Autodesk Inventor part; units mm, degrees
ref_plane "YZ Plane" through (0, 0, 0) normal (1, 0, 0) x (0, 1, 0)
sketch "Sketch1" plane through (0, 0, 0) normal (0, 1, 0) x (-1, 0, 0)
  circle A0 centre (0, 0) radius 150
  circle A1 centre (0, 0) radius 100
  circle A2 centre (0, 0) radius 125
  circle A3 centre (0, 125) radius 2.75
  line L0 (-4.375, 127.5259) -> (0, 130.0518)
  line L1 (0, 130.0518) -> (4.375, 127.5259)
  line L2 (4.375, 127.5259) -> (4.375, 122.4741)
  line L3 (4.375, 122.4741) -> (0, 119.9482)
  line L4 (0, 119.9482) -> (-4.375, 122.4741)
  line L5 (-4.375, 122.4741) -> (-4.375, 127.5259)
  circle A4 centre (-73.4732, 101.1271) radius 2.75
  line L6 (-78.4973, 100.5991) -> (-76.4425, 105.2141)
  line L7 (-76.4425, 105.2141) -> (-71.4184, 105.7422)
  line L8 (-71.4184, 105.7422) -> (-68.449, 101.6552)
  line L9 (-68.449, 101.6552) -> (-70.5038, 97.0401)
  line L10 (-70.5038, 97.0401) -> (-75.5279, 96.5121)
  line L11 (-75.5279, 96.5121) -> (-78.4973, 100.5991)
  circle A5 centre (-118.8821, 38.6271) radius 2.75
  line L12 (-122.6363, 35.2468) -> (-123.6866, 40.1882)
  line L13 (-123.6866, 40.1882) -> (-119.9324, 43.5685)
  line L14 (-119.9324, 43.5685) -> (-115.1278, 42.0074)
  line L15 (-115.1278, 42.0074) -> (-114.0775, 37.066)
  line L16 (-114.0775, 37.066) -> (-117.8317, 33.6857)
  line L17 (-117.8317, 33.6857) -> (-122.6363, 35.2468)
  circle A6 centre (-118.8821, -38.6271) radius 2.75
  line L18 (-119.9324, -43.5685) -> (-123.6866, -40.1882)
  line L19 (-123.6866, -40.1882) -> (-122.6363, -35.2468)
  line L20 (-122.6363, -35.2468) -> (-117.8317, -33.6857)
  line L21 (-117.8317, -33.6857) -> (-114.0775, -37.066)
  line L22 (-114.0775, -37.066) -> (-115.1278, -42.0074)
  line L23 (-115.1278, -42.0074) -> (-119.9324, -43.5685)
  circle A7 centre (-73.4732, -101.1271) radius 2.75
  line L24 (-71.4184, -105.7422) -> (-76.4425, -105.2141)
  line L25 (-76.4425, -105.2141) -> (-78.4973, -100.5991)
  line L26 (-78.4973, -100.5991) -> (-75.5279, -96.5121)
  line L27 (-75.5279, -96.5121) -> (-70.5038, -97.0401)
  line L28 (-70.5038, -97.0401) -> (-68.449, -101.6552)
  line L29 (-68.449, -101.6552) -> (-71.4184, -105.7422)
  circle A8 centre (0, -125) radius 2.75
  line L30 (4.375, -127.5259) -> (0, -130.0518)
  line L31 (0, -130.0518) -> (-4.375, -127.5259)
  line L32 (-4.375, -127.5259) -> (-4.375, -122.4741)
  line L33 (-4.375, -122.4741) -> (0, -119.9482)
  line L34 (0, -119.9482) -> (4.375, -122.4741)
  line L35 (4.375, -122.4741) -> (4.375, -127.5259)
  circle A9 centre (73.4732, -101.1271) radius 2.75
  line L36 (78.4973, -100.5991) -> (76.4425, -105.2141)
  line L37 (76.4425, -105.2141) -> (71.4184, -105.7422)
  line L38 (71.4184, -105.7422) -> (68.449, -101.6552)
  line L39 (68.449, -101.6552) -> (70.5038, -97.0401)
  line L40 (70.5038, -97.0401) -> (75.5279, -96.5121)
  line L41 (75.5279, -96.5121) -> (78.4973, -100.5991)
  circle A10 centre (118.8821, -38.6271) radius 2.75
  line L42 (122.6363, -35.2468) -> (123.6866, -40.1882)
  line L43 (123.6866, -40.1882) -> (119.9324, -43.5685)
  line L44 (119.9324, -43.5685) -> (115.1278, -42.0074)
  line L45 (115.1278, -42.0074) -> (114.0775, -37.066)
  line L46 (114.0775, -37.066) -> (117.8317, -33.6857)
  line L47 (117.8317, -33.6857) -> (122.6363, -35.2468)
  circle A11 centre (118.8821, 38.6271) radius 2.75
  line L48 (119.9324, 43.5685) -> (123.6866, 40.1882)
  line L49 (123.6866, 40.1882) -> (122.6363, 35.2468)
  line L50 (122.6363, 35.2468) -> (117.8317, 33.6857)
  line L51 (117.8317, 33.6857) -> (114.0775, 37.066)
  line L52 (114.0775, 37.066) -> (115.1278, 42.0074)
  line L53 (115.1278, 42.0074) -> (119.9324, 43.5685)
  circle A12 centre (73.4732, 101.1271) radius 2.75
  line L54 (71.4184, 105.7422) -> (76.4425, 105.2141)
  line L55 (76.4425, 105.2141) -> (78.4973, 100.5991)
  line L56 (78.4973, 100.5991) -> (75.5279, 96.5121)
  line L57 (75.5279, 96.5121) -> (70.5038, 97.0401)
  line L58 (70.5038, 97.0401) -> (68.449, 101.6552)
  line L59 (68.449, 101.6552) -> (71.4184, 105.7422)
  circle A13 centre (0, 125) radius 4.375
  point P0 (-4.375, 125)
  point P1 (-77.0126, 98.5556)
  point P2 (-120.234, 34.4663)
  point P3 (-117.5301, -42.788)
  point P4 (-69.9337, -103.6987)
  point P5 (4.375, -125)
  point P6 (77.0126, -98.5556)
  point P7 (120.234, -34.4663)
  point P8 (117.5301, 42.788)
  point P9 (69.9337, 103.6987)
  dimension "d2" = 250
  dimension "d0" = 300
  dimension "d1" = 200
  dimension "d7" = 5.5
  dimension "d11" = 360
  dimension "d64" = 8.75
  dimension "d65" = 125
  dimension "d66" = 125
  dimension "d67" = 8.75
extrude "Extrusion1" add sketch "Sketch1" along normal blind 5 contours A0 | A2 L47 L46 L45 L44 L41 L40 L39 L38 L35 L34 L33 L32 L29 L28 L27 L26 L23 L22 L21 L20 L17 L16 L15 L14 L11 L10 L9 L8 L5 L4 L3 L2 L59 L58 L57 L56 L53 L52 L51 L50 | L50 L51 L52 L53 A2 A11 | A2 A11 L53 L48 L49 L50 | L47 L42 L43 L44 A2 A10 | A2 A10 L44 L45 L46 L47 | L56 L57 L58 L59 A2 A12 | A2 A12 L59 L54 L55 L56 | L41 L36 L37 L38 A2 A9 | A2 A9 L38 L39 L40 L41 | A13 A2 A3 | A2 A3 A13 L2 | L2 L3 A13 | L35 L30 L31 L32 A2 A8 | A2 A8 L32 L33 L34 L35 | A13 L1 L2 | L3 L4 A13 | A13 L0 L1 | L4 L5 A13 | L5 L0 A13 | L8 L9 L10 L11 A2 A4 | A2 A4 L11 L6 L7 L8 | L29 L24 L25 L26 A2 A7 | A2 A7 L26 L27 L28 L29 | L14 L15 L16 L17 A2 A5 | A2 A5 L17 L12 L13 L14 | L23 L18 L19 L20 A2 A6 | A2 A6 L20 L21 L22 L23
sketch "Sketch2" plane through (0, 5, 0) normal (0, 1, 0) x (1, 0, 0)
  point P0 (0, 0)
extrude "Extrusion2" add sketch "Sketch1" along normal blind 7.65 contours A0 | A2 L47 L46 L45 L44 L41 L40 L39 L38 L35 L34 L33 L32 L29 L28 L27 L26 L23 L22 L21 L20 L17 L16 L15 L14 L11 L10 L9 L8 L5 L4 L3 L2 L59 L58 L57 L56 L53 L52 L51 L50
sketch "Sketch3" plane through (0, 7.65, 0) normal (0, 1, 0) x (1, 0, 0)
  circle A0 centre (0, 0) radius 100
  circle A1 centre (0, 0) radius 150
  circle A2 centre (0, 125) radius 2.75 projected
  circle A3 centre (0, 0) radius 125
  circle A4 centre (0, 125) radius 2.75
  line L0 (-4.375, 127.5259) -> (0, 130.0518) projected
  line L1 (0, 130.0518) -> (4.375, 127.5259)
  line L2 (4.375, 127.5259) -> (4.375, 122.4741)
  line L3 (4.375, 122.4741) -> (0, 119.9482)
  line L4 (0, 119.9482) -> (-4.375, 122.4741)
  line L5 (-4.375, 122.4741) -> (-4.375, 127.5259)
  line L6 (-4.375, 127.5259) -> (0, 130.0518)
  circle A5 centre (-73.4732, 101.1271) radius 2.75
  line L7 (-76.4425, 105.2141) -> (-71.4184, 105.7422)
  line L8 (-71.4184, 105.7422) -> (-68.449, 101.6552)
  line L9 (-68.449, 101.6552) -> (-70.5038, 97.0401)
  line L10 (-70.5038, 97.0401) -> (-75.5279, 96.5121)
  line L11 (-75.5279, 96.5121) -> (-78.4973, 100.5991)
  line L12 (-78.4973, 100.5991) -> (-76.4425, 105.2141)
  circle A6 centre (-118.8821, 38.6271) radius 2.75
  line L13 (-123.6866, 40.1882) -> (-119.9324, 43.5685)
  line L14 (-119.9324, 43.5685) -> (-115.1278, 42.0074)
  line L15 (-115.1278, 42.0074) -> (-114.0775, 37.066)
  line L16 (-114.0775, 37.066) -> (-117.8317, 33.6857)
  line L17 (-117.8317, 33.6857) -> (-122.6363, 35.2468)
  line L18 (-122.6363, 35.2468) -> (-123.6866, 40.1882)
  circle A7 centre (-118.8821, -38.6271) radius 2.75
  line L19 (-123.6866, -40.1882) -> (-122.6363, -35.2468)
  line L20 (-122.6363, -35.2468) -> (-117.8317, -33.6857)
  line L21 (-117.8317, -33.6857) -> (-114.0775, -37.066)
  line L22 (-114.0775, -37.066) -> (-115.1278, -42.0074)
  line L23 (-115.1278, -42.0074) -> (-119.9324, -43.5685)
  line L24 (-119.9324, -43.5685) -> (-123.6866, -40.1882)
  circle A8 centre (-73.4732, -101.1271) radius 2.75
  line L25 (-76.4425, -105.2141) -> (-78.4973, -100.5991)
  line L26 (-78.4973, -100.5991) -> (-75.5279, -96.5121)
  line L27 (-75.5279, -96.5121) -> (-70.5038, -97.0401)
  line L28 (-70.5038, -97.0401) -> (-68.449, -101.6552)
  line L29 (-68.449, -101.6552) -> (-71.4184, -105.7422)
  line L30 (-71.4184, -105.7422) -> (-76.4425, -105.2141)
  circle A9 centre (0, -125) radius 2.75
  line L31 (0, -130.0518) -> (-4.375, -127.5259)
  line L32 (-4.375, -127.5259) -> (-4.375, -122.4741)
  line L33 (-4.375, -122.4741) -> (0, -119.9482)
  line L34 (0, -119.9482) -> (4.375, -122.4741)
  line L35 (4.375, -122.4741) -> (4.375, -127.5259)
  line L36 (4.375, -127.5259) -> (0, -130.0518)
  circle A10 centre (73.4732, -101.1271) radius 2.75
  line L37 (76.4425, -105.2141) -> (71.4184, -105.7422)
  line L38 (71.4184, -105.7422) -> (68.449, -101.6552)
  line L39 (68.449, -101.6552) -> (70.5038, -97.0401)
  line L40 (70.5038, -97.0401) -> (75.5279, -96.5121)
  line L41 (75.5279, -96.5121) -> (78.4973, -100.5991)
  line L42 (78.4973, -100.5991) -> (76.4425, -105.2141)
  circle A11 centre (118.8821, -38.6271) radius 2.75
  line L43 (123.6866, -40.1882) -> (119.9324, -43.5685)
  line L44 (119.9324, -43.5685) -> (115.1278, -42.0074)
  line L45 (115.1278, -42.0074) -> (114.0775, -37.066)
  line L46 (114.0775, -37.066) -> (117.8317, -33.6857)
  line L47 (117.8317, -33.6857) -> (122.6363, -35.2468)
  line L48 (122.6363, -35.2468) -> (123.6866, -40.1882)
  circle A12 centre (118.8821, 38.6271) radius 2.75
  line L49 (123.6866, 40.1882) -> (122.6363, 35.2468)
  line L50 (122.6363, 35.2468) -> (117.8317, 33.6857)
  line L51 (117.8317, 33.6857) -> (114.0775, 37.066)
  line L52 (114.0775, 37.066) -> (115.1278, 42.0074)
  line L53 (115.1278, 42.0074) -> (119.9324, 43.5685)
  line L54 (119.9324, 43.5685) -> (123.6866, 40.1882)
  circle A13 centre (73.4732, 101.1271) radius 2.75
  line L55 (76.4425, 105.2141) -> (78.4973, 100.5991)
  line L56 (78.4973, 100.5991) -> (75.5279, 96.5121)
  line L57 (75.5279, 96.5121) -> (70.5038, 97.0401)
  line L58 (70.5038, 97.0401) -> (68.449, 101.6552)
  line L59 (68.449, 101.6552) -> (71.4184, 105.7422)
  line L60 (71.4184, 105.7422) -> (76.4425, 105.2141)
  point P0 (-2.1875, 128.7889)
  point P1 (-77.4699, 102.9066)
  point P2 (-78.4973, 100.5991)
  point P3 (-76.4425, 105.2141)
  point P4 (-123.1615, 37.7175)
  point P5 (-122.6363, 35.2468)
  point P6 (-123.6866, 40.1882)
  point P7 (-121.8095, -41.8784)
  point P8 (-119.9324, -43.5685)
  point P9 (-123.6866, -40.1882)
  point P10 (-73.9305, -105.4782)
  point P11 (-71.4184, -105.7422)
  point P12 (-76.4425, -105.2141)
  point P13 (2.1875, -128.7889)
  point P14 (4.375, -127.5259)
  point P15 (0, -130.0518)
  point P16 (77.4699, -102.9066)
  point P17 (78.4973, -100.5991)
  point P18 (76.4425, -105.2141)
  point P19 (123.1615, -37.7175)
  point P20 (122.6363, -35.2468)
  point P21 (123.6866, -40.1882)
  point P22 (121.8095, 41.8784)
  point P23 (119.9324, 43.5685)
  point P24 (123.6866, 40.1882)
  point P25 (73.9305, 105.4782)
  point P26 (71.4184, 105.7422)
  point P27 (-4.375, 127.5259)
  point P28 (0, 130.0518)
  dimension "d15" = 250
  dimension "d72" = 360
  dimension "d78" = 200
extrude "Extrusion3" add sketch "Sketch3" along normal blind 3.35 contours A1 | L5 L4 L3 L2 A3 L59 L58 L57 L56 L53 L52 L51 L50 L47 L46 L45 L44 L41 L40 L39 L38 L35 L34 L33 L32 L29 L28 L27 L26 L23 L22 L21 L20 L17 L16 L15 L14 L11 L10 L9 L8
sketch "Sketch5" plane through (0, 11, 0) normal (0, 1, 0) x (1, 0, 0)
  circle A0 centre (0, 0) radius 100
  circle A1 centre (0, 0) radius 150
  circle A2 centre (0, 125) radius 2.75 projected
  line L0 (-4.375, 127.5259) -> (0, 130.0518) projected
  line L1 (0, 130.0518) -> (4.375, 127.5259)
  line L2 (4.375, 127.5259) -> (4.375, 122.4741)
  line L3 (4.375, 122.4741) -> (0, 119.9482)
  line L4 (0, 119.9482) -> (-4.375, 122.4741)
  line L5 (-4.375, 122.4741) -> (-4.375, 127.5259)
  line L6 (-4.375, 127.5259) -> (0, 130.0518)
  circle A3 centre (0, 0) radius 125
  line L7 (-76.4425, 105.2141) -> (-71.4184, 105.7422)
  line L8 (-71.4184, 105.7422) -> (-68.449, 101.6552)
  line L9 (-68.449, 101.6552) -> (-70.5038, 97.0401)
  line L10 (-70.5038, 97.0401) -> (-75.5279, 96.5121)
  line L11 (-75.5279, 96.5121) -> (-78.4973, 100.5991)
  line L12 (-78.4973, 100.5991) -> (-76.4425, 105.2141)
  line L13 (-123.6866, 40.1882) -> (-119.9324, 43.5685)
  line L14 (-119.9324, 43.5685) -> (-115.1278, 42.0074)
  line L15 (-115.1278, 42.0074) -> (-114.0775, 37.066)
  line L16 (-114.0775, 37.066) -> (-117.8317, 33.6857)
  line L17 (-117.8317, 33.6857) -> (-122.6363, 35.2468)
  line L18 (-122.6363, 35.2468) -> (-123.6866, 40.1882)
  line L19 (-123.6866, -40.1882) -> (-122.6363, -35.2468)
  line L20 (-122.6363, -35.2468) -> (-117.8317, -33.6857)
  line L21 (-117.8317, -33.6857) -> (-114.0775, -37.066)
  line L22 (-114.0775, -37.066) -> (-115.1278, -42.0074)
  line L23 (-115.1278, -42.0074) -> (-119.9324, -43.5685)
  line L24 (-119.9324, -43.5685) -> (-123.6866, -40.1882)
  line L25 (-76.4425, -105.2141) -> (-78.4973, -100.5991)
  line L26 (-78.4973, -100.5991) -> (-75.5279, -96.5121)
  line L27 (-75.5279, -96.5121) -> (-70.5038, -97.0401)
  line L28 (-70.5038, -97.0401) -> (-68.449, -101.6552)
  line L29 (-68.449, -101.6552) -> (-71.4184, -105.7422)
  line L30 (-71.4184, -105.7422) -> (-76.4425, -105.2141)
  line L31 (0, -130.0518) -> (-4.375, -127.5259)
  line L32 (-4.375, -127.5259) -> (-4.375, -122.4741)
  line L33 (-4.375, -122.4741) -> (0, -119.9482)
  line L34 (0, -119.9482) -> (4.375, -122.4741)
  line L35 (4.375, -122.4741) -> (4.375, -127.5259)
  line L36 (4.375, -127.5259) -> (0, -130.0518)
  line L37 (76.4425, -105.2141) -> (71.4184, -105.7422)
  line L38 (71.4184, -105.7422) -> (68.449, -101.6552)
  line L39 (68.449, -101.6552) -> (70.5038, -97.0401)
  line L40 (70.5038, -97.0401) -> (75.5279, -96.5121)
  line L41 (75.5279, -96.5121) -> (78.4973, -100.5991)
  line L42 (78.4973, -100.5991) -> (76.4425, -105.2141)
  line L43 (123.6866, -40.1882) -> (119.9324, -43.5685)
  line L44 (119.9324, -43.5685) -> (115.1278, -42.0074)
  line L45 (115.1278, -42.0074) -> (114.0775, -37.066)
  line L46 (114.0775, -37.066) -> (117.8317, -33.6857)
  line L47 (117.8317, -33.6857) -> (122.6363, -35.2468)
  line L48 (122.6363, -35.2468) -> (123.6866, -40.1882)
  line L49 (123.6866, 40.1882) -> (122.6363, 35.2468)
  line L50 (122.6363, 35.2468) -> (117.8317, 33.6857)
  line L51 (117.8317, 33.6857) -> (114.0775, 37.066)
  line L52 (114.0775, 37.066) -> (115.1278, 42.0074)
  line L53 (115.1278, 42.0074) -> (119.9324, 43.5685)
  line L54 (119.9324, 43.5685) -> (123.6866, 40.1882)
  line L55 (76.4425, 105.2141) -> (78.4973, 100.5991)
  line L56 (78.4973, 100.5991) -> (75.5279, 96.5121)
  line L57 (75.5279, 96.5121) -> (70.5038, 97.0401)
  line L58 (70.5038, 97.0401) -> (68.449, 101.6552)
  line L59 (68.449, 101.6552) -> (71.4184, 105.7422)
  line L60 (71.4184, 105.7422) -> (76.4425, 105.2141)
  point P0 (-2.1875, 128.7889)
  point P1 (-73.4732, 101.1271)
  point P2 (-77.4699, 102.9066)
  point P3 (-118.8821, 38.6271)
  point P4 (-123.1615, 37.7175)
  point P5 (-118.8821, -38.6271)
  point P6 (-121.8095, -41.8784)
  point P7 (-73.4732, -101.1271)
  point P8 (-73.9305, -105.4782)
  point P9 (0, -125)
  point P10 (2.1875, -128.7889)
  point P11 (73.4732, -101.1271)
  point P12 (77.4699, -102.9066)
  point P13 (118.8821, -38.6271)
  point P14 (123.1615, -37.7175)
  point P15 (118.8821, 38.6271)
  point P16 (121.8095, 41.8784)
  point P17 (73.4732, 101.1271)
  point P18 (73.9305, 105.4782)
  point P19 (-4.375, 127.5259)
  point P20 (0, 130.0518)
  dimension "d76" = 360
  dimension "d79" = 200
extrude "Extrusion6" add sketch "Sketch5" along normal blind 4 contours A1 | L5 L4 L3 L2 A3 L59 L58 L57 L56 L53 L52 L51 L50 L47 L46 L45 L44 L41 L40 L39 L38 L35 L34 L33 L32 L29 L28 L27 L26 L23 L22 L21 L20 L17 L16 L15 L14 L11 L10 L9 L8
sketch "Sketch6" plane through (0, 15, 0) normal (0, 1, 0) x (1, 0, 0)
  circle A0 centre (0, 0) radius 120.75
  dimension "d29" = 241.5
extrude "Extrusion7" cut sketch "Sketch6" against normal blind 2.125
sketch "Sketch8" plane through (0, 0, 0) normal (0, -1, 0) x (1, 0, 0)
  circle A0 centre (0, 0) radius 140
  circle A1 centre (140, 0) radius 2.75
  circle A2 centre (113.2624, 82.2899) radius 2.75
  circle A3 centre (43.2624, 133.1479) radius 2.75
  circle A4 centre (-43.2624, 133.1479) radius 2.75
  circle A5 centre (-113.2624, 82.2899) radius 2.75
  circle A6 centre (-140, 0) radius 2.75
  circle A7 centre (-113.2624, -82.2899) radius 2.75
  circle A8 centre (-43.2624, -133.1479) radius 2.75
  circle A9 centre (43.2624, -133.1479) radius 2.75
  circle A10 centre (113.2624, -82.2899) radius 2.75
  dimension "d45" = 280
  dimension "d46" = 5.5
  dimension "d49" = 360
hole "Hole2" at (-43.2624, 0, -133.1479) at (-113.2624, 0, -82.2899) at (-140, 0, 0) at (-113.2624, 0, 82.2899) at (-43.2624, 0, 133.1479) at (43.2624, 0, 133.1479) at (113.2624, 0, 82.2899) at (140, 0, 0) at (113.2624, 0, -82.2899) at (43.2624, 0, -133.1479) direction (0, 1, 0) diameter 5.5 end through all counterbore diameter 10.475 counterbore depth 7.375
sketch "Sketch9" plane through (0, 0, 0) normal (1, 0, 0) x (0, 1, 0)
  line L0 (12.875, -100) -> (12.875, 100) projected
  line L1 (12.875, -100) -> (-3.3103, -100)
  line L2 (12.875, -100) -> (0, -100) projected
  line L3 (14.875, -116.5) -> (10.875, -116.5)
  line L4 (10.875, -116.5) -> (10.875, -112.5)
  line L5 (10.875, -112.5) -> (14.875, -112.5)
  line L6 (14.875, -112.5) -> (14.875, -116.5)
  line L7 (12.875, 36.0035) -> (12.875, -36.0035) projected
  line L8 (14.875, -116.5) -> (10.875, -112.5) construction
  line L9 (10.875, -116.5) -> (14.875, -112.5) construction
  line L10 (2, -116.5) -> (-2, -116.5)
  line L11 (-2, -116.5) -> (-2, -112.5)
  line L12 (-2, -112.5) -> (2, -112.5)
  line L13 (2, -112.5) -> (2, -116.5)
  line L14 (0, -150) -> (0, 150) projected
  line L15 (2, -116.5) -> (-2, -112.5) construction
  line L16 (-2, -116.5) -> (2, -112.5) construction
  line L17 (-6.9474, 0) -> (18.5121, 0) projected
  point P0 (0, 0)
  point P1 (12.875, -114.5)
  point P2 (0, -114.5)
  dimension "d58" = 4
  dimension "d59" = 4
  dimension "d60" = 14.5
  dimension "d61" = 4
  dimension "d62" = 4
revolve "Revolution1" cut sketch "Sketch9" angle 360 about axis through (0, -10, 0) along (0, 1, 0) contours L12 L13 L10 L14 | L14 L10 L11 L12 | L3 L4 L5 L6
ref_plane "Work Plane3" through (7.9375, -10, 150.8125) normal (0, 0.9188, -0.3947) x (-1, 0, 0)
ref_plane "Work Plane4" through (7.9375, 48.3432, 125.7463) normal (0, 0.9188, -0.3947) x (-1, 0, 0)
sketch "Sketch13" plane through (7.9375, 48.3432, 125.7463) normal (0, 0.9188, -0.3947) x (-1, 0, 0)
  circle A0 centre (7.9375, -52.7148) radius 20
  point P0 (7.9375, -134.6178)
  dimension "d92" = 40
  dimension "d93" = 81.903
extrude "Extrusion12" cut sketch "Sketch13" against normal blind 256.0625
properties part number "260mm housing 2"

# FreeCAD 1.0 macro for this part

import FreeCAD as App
import Part
import Sketcher
from FreeCAD import Vector
Q = App.Units.Quantity


def add_polygon(sketch, points):
    """Adds a closed chain of lines whose ends are joined by coincident constraints."""
    first, n = sketch.GeometryCount, len(points)
    for a, b in zip(points, points[1:] + points[:1]):
        sketch.addGeometry(Part.LineSegment(App.Vector(*a, 0), App.Vector(*b, 0)), False)
    for i in range(n):
        sketch.addConstraint(Sketcher.Constraint("Coincident", first + i, 2, first + (i + 1) % n, 1))

doc = App.newDocument("Part")
body = doc.addObject("PartDesign::Body", "Body")

# Sketch on XZ plane
sketch1 = body.newObject("Sketcher::SketchObject", "Sketch")
sketch1.AttachmentSupport = (doc.getObject("XZ_Plane"), [""])
sketch1.MapMode = "FlatFace"
sketch1.addGeometry(Part.Circle(Vector(0, 0, 0), Vector(0, 0, 1), 150), False)
sketch1.addGeometry(Part.Circle(Vector(0, 0, 0), Vector(0, 0, 1), 100), False)
sketch1.addGeometry(Part.Circle(Vector(-118.8821, 38.6271, 0), Vector(0, 0, 1), 2.75), False)
sketch1.addGeometry(Part.Circle(Vector(-73.4732, 101.1271, 0), Vector(0, 0, 1), 2.75), False)
sketch1.addGeometry(Part.Circle(Vector(0, 125, 0), Vector(0, 0, 1), 2.75), False)
sketch1.addGeometry(Part.Circle(Vector(73.4732, 101.1271, 0), Vector(0, 0, 1), 2.75), False)
sketch1.addGeometry(Part.Circle(Vector(118.8821, 38.6271, 0), Vector(0, 0, 1), 2.75), False)
sketch1.addGeometry(Part.Circle(Vector(118.8821, -38.6271, 0), Vector(0, 0, 1), 2.75), False)
sketch1.addGeometry(Part.Circle(Vector(73.4732, -101.1271, 0), Vector(0, 0, 1), 2.75), False)
sketch1.addGeometry(Part.Circle(Vector(0, -125, 0), Vector(0, 0, 1), 2.75), False)
sketch1.addGeometry(Part.Circle(Vector(-73.4732, -101.1271, 0), Vector(0, 0, 1), 2.75), False)
sketch1.addGeometry(Part.Circle(Vector(-118.8821, -38.6271, 0), Vector(0, 0, 1), 2.75), False)
sketch1.addConstraint(Sketcher.Constraint("Coincident", 0, 3, -1, 1))
sketch1.addConstraint(Sketcher.Constraint("Coincident", 1, 3, -1, 1))
sketch1.addConstraint(Sketcher.Constraint("Equal", 2, 3))
sketch1.addConstraint(Sketcher.Constraint("Equal", 3, 4))
sketch1.addConstraint(Sketcher.Constraint("Equal", 4, 5))
sketch1.addConstraint(Sketcher.Constraint("Equal", 5, 6))
sketch1.addConstraint(Sketcher.Constraint("Equal", 6, 7))
sketch1.addConstraint(Sketcher.Constraint("Equal", 7, 8))
sketch1.addConstraint(Sketcher.Constraint("Equal", 8, 9))
sketch1.addConstraint(Sketcher.Constraint("Equal", 9, 10))
sketch1.addConstraint(Sketcher.Constraint("Equal", 10, 11))
sketch1.addConstraint(Sketcher.Constraint("Symmetric", 2, 3, 7, 3, -1, 1))
sketch1.addConstraint(Sketcher.Constraint("Symmetric", 3, 3, 8, 3, -1, 1))
sketch1.addConstraint(Sketcher.Constraint("Symmetric", 4, 3, 9, 3, -1, 1))
sketch1.addConstraint(Sketcher.Constraint("Symmetric", 5, 3, 10, 3, -1, 1))
sketch1.addConstraint(Sketcher.Constraint("Symmetric", 6, 3, 11, 3, -1, 1))
sketch1.addConstraint(Sketcher.Constraint("Symmetric", 3, 3, 5, 3, -2))
sketch1.addConstraint(Sketcher.Constraint("Symmetric", 2, 3, 6, 3, -2))
sketch1.addConstraint(Sketcher.Constraint("PointOnObject", 4, 3, -2))
sketch1.addConstraint(Sketcher.Constraint("Diameter", 0, Q("300 mm")))
sketch1.addConstraint(Sketcher.Constraint("Diameter", 1, Q("200 mm")))
sketch1.addConstraint(Sketcher.Constraint("Diameter", 2, Q("5.5 mm")))
sketch1.addConstraint(Sketcher.Constraint("DistanceY", -1, 1, 4, 3, Q("125 mm")))
sketch1.addConstraint(Sketcher.Constraint("DistanceY", 2, 3, 3, 3, Q("62.5 mm")))
sketch1.addConstraint(Sketcher.Constraint("DistanceX", 2, 3, -1, 1, Q("118.882 mm")))
sketch1.addConstraint(Sketcher.Constraint("DistanceY", -1, 1, 2, 3, Q("38.627 mm")))
sketch1.addConstraint(Sketcher.Constraint("DistanceX", 2, 3, 3, 3, Q("45.409 mm")))
pad1 = body.newObject("PartDesign::Pad", "Pad")
pad1.Profile = sketch1
pad1.Length = 5
pad1.Reversed = True

# Sketch on XZ plane
sketch2 = body.newObject("Sketcher::SketchObject", "Sketch001")
sketch2.AttachmentSupport = (doc.getObject("XZ_Plane"), [""])
sketch2.MapMode = "FlatFace"
sketch2.addGeometry(Part.Circle(Vector(0, 0, 0), Vector(0, 0, 1), 150), False)  # 0
add_polygon(sketch2, [(-122.6363, 35.2468), (-117.8317, 33.6857), (-114.0775, 37.066), (-115.1278, 42.0074), (-119.9324, 43.5685), (-123.6866, 40.1882)])  # lines 1-6
add_polygon(sketch2, [(-78.4973, 100.5991), (-75.5279, 96.5121), (-70.5038, 97.0401), (-68.449, 101.6552), (-71.4184, 105.7422), (-76.4425, 105.2141)])  # lines 7-12
add_polygon(sketch2, [(-4.375, 122.4741), (0, 119.9482), (4.375, 122.4741), (4.375, 127.5259), (0, 130.0518), (-4.375, 127.5259)])  # lines 13-18
add_polygon(sketch2, [(71.4184, 105.7422), (68.449, 101.6552), (70.5038, 97.0401), (75.5279, 96.5121), (78.4973, 100.5991), (76.4425, 105.2141)])  # lines 19-24
add_polygon(sketch2, [(119.9324, 43.5685), (115.1278, 42.0074), (114.0775, 37.066), (117.8317, 33.6857), (122.6363, 35.2468), (123.6866, 40.1882)])  # lines 25-30
add_polygon(sketch2, [(122.6363, -35.2468), (117.8317, -33.6857), (114.0775, -37.066), (115.1278, -42.0074), (119.9324, -43.5685), (123.6866, -40.1882)])  # lines 31-36
add_polygon(sketch2, [(78.4973, -100.5991), (75.5279, -96.5121), (70.5038, -97.0401), (68.449, -101.6552), (71.4184, -105.7422), (76.4425, -105.2141)])  # lines 37-42
add_polygon(sketch2, [(4.375, -127.5259), (4.375, -122.4741), (0, -119.9482), (-4.375, -122.4741), (-4.375, -127.5259), (0, -130.0518)])  # lines 43-48
add_polygon(sketch2, [(-71.4184, -105.7422), (-68.449, -101.6552), (-70.5038, -97.0401), (-75.5279, -96.5121), (-78.4973, -100.5991), (-76.4425, -105.2141)])  # lines 49-54
add_polygon(sketch2, [(-119.9324, -43.5685), (-115.1278, -42.0074), (-114.0775, -37.066), (-117.8317, -33.6857), (-122.6363, -35.2468), (-123.6866, -40.1882)])  # lines 55-60
sketch2.addGeometry(Part.Circle(Vector(0, 0, 0), Vector(0, 0, 1), 100), False)  # 61
sketch2.addConstraint(Sketcher.Constraint("Vertical", 15))
sketch2.addConstraint(Sketcher.Constraint("Vertical", 18))
sketch2.addConstraint(Sketcher.Constraint("Vertical", 43))
sketch2.addConstraint(Sketcher.Constraint("Vertical", 46))
sketch2.addConstraint(Sketcher.Constraint("Coincident", 0, 3, -1, 1))
sketch2.addConstraint(Sketcher.Constraint("Coincident", 61, 3, -1, 1))
sketch2.addConstraint(Sketcher.Constraint("Symmetric", 1, 2, 31, 2, -1, 1))
sketch2.addConstraint(Sketcher.Constraint("Symmetric", 2, 2, 32, 2, -1, 1))
sketch2.addConstraint(Sketcher.Constraint("Symmetric", 3, 2, 33, 2, -1, 1))
sketch2.addConstraint(Sketcher.Constraint("Symmetric", 4, 2, 34, 2, -1, 1))
sketch2.addConstraint(Sketcher.Constraint("Symmetric", 5, 2, 35, 2, -1, 1))
sketch2.addConstraint(Sketcher.Constraint("Symmetric", 6, 2, 36, 2, -1, 1))
sketch2.addConstraint(Sketcher.Constraint("Symmetric", 7, 2, 37, 2, -1, 1))
sketch2.addConstraint(Sketcher.Constraint("Symmetric", 8, 2, 38, 2, -1, 1))
sketch2.addConstraint(Sketcher.Constraint("Symmetric", 9, 2, 39, 2, -1, 1))
sketch2.addConstraint(Sketcher.Constraint("Symmetric", 10, 2, 40, 2, -1, 1))
sketch2.addConstraint(Sketcher.Constraint("Symmetric", 11, 2, 41, 2, -1, 1))
sketch2.addConstraint(Sketcher.Constraint("Symmetric", 12, 2, 42, 2, -1, 1))
sketch2.addConstraint(Sketcher.Constraint("Symmetric", 18, 2, 43, 2, -1, 1))
sketch2.addConstraint(Sketcher.Constraint("Symmetric", 13, 2, 44, 2, -1, 1))
sketch2.addConstraint(Sketcher.Constraint("Symmetric", 14, 2, 45, 2, -1, 1))
sketch2.addConstraint(Sketcher.Constraint("Symmetric", 16, 2, 47, 2, -1, 1))
sketch2.addConstraint(Sketcher.Constraint("Symmetric", 19, 2, 49, 2, -1, 1))
sketch2.addConstraint(Sketcher.Constraint("Symmetric", 20, 2, 50, 2, -1, 1))
sketch2.addConstraint(Sketcher.Constraint("Symmetric", 21, 2, 51, 2, -1, 1))
sketch2.addConstraint(Sketcher.Constraint("Symmetric", 22, 2, 52, 2, -1, 1))
sketch2.addConstraint(Sketcher.Constraint("Symmetric", 23, 2, 53, 2, -1, 1))
sketch2.addConstraint(Sketcher.Constraint("Symmetric", 24, 2, 54, 2, -1, 1))
sketch2.addConstraint(Sketcher.Constraint("Symmetric", 25, 2, 55, 2, -1, 1))
sketch2.addConstraint(Sketcher.Constraint("Symmetric", 26, 2, 56, 2, -1, 1))
sketch2.addConstraint(Sketcher.Constraint("Symmetric", 27, 2, 57, 2, -1, 1))
sketch2.addConstraint(Sketcher.Constraint("Symmetric", 28, 2, 58, 2, -1, 1))
sketch2.addConstraint(Sketcher.Constraint("Symmetric", 29, 2, 59, 2, -1, 1))
sketch2.addConstraint(Sketcher.Constraint("Symmetric", 30, 2, 60, 2, -1, 1))
sketch2.addConstraint(Sketcher.Constraint("Symmetric", 15, 2, 17, 2, -2))
sketch2.addConstraint(Sketcher.Constraint("Symmetric", 9, 2, 19, 2, -2))
sketch2.addConstraint(Sketcher.Constraint("Symmetric", 8, 2, 20, 2, -2))
sketch2.addConstraint(Sketcher.Constraint("Symmetric", 7, 2, 21, 2, -2))
sketch2.addConstraint(Sketcher.Constraint("Symmetric", 12, 2, 22, 2, -2))
sketch2.addConstraint(Sketcher.Constraint("Symmetric", 11, 2, 23, 2, -2))
sketch2.addConstraint(Sketcher.Constraint("Symmetric", 10, 2, 24, 2, -2))
sketch2.addConstraint(Sketcher.Constraint("Symmetric", 3, 2, 25, 2, -2))
sketch2.addConstraint(Sketcher.Constraint("Symmetric", 2, 2, 26, 2, -2))
sketch2.addConstraint(Sketcher.Constraint("Symmetric", 1, 2, 27, 2, -2))
sketch2.addConstraint(Sketcher.Constraint("Symmetric", 6, 2, 28, 2, -2))
sketch2.addConstraint(Sketcher.Constraint("Symmetric", 5, 2, 29, 2, -2))
sketch2.addConstraint(Sketcher.Constraint("Symmetric", 4, 2, 30, 2, -2))
sketch2.addConstraint(Sketcher.Constraint("PointOnObject", 13, 2, -2))
sketch2.addConstraint(Sketcher.Constraint("PointOnObject", 16, 2, -2))
sketch2.addConstraint(Sketcher.Constraint("Parallel", 1, 4))
sketch2.addConstraint(Sketcher.Constraint("Parallel", 2, 5))
sketch2.addConstraint(Sketcher.Constraint("Parallel", 3, 6))
sketch2.addConstraint(Sketcher.Constraint("Parallel", 7, 10))
sketch2.addConstraint(Sketcher.Constraint("Parallel", 8, 11))
sketch2.addConstraint(Sketcher.Constraint("Parallel", 9, 12))
sketch2.addConstraint(Sketcher.Constraint("Parallel", 13, 16))
sketch2.addConstraint(Sketcher.Constraint("Parallel", 14, 17))
sketch2.addConstraint(Sketcher.Constraint("Parallel", 44, 47))
sketch2.addConstraint(Sketcher.Constraint("Parallel", 45, 48))
sketch2.addConstraint(Sketcher.Constraint("Equal", 1, 2))
sketch2.addConstraint(Sketcher.Constraint("Equal", 2, 3))
sketch2.addConstraint(Sketcher.Constraint("Equal", 3, 4))
sketch2.addConstraint(Sketcher.Constraint("Equal", 6, 7))
sketch2.addConstraint(Sketcher.Constraint("Equal", 7, 8))
sketch2.addConstraint(Sketcher.Constraint("Equal", 8, 9))
sketch2.addConstraint(Sketcher.Constraint("Equal", 9, 10))
sketch2.addConstraint(Sketcher.Constraint("Equal", 12, 13))
sketch2.addConstraint(Sketcher.Constraint("Diameter", 0, Q("300 mm")))
sketch2.addConstraint(Sketcher.Constraint("Diameter", 61, Q("200 mm")))
sketch2.addConstraint(Sketcher.Constraint("Angle", 1, Q("-18 deg")))
sketch2.addConstraint(Sketcher.Constraint("Angle", 2, Q("42 deg")))
sketch2.addConstraint(Sketcher.Constraint("Angle", 3, Q("101.9997 deg")))
sketch2.addConstraint(Sketcher.Constraint("Angle", 7, Q("-53.9998 deg")))
sketch2.addConstraint(Sketcher.Constraint("Angle", 8, Q("5.9994 deg")))
sketch2.addConstraint(Sketcher.Constraint("Angle", 9, Q("65.9997 deg")))
sketch2.addConstraint(Sketcher.Constraint("Angle", 13, Q("-30 deg")))
sketch2.addConstraint(Sketcher.Constraint("DistanceY", -1, 1, 8, 2, Q("97.04 mm")))
sketch2.addConstraint(Sketcher.Constraint("DistanceY", 15, 1, 15, 2, Q("5.0518 mm")))
sketch2.addConstraint(Sketcher.Constraint("DistanceY", -1, 1, 2, 2, Q("37.066 mm")))
sketch2.addConstraint(Sketcher.Constraint("DistanceX", 7, 2, -1, 1, Q("75.528 mm")))
sketch2.addConstraint(Sketcher.Constraint("DistanceY", -1, 1, 7, 2, Q("96.512 mm")))
sketch2.addConstraint(Sketcher.Constraint("DistanceY", -1, 1, 14, 2, Q("122.474 mm")))
sketch2.addConstraint(Sketcher.Constraint("DistanceX", 1, 2, -1, 1, Q("117.8317 mm")))
pad2 = body.newObject("PartDesign::Pad", "Pad001")
pad2.Profile = sketch2
pad2.Length = 7.65
pad2.Reversed = True

# Sketch on XZ plane
sketch3 = body.newObject("Sketcher::SketchObject", "Sketch002")
sketch3.AttachmentSupport = (doc.getObject("XZ_Plane"), [""])
sketch3.MapMode = "FlatFace"
sketch3.AttachmentOffset = App.Placement(Vector(0, 0, -7.65), App.Rotation())
sketch3.addGeometry(Part.Circle(Vector(0, 0, 0), Vector(0, 0, 1), 150), False)  # 0
add_polygon(sketch3, [(-71.4184, -105.7422), (-68.449, -101.6552), (-70.5038, -97.0401), (-75.5279, -96.5121), (-78.4973, -100.5991), (-76.4425, -105.2141)])  # lines 1-6
add_polygon(sketch3, [(-119.9324, -43.5685), (-115.1278, -42.0074), (-114.0775, -37.066), (-117.8317, -33.6857), (-122.6363, -35.2468), (-123.6866, -40.1882)])  # lines 7-12
add_polygon(sketch3, [(-122.6363, 35.2468), (-117.8317, 33.6857), (-114.0775, 37.066), (-115.1278, 42.0074), (-119.9324, 43.5685), (-123.6866, 40.1882)])  # lines 13-18
add_polygon(sketch3, [(-78.4973, 100.5991), (-75.5279, 96.5121), (-70.5038, 97.0401), (-68.449, 101.6552), (-71.4184, 105.7422), (-76.4425, 105.2141)])  # lines 19-24
add_polygon(sketch3, [(-4.375, 127.5259), (-4.375, 122.4741), (0, 119.9482), (4.375, 122.4741), (4.375, 127.5259), (0, 130.0518)])  # lines 25-30
add_polygon(sketch3, [(71.4184, 105.7422), (68.449, 101.6552), (70.5038, 97.0401), (75.5279, 96.5121), (78.4973, 100.5991), (76.4425, 105.2141)])  # lines 31-36
add_polygon(sketch3, [(119.9324, 43.5685), (115.1278, 42.0074), (114.0775, 37.066), (117.8317, 33.6857), (122.6363, 35.2468), (123.6866, 40.1882)])  # lines 37-42
add_polygon(sketch3, [(122.6363, -35.2468), (117.8317, -33.6857), (114.0775, -37.066), (115.1278, -42.0074), (119.9324, -43.5685), (123.6866, -40.1882)])  # lines 43-48
add_polygon(sketch3, [(78.4973, -100.5991), (75.5279, -96.5121), (70.5038, -97.0401), (68.449, -101.6552), (71.4184, -105.7422), (76.4425, -105.2141)])  # lines 49-54
add_polygon(sketch3, [(4.375, -127.5259), (4.375, -122.4741), (0, -119.9482), (-4.375, -122.4741), (-4.375, -127.5259), (0, -130.0518)])  # lines 55-60
sketch3.addGeometry(Part.Circle(Vector(0, 0, 0), Vector(0, 0, 1), 100), False)  # 61
sketch3.addConstraint(Sketcher.Constraint("Vertical", 25))
sketch3.addConstraint(Sketcher.Constraint("Vertical", 28))
sketch3.addConstraint(Sketcher.Constraint("Vertical", 55))
sketch3.addConstraint(Sketcher.Constraint("Vertical", 58))
sketch3.addConstraint(Sketcher.Constraint("Coincident", 0, 3, -1, 1))
sketch3.addConstraint(Sketcher.Constraint("Coincident", 61, 3, -1, 1))
sketch3.addConstraint(Sketcher.Constraint("Symmetric", 1, 2, 31, 2, -1, 1))
sketch3.addConstraint(Sketcher.Constraint("Symmetric", 2, 2, 32, 2, -1, 1))
sketch3.addConstraint(Sketcher.Constraint("Symmetric", 3, 2, 33, 2, -1, 1))
sketch3.addConstraint(Sketcher.Constraint("Symmetric", 4, 2, 34, 2, -1, 1))
sketch3.addConstraint(Sketcher.Constraint("Symmetric", 5, 2, 35, 2, -1, 1))
sketch3.addConstraint(Sketcher.Constraint("Symmetric", 6, 2, 36, 2, -1, 1))
sketch3.addConstraint(Sketcher.Constraint("Symmetric", 7, 2, 37, 2, -1, 1))
sketch3.addConstraint(Sketcher.Constraint("Symmetric", 8, 2, 38, 2, -1, 1))
sketch3.addConstraint(Sketcher.Constraint("Symmetric", 9, 2, 39, 2, -1, 1))
sketch3.addConstraint(Sketcher.Constraint("Symmetric", 10, 2, 40, 2, -1, 1))
sketch3.addConstraint(Sketcher.Constraint("Symmetric", 11, 2, 41, 2, -1, 1))
sketch3.addConstraint(Sketcher.Constraint("Symmetric", 12, 2, 42, 2, -1, 1))
sketch3.addConstraint(Sketcher.Constraint("Symmetric", 13, 2, 43, 2, -1, 1))
sketch3.addConstraint(Sketcher.Constraint("Symmetric", 14, 2, 44, 2, -1, 1))
sketch3.addConstraint(Sketcher.Constraint("Symmetric", 15, 2, 45, 2, -1, 1))
sketch3.addConstraint(Sketcher.Constraint("Symmetric", 16, 2, 46, 2, -1, 1))
sketch3.addConstraint(Sketcher.Constraint("Symmetric", 17, 2, 47, 2, -1, 1))
sketch3.addConstraint(Sketcher.Constraint("Symmetric", 18, 2, 48, 2, -1, 1))
sketch3.addConstraint(Sketcher.Constraint("Symmetric", 19, 2, 49, 2, -1, 1))
sketch3.addConstraint(Sketcher.Constraint("Symmetric", 20, 2, 50, 2, -1, 1))
sketch3.addConstraint(Sketcher.Constraint("Symmetric", 21, 2, 51, 2, -1, 1))
sketch3.addConstraint(Sketcher.Constraint("Symmetric", 22, 2, 52, 2, -1, 1))
sketch3.addConstraint(Sketcher.Constraint("Symmetric", 23, 2, 53, 2, -1, 1))
sketch3.addConstraint(Sketcher.Constraint("Symmetric", 24, 2, 54, 2, -1, 1))
sketch3.addConstraint(Sketcher.Constraint("Symmetric", 25, 2, 55, 2, -1, 1))
sketch3.addConstraint(Sketcher.Constraint("Symmetric", 26, 2, 56, 2, -1, 1))
sketch3.addConstraint(Sketcher.Constraint("Symmetric", 27, 2, 57, 2, -1, 1))
sketch3.addConstraint(Sketcher.Constraint("Symmetric", 29, 2, 59, 2, -1, 1))
sketch3.addConstraint(Sketcher.Constraint("Symmetric", 25, 2, 27, 2, -2))
sketch3.addConstraint(Sketcher.Constraint("Symmetric", 21, 2, 31, 2, -2))
sketch3.addConstraint(Sketcher.Constraint("Symmetric", 20, 2, 32, 2, -2))
sketch3.addConstraint(Sketcher.Constraint("Symmetric", 19, 2, 33, 2, -2))
sketch3.addConstraint(Sketcher.Constraint("Symmetric", 24, 2, 34, 2, -2))
sketch3.addConstraint(Sketcher.Constraint("Symmetric", 23, 2, 35, 2, -2))
sketch3.addConstraint(Sketcher.Constraint("Symmetric", 22, 2, 36, 2, -2))
sketch3.addConstraint(Sketcher.Constraint("Symmetric", 15, 2, 37, 2, -2))
sketch3.addConstraint(Sketcher.Constraint("Symmetric", 14, 2, 38, 2, -2))
sketch3.addConstraint(Sketcher.Constraint("Symmetric", 13, 2, 39, 2, -2))
sketch3.addConstraint(Sketcher.Constraint("Symmetric", 18, 2, 40, 2, -2))
sketch3.addConstraint(Sketcher.Constraint("Symmetric", 17, 2, 41, 2, -2))
sketch3.addConstraint(Sketcher.Constraint("Symmetric", 16, 2, 42, 2, -2))
sketch3.addConstraint(Sketcher.Constraint("PointOnObject", 26, 2, -2))
sketch3.addConstraint(Sketcher.Constraint("PointOnObject", 29, 2, -2))
sketch3.addConstraint(Sketcher.Constraint("Parallel", 1, 4))
sketch3.addConstraint(Sketcher.Constraint("Parallel", 2, 5))
sketch3.addConstraint(Sketcher.Constraint("Parallel", 3, 6))
sketch3.addConstraint(Sketcher.Constraint("Parallel", 7, 10))
sketch3.addConstraint(Sketcher.Constraint("Parallel", 8, 11))
sketch3.addConstraint(Sketcher.Constraint("Parallel", 9, 12))
sketch3.addConstraint(Sketcher.Constraint("Parallel", 26, 29))
sketch3.addConstraint(Sketcher.Constraint("Parallel", 27, 30))
sketch3.addConstraint(Sketcher.Constraint("Parallel", 56, 59))
sketch3.addConstraint(Sketcher.Constraint("Parallel", 57, 60))
sketch3.addConstraint(Sketcher.Constraint("Equal", 1, 2))
sketch3.addConstraint(Sketcher.Constraint("Equal", 2, 3))
sketch3.addConstraint(Sketcher.Constraint("Equal", 3, 4))
sketch3.addConstraint(Sketcher.Constraint("Equal", 6, 7))
sketch3.addConstraint(Sketcher.Constraint("Equal", 7, 8))
sketch3.addConstraint(Sketcher.Constraint("Equal", 8, 9))
sketch3.addConstraint(Sketcher.Constraint("Equal", 9, 10))
sketch3.addConstraint(Sketcher.Constraint("Equal", 24, 26))
sketch3.addConstraint(Sketcher.Constraint("Diameter", 61, Q("200 mm")))
sketch3.addConstraint(Sketcher.Constraint("Diameter", 0, Q("300 mm")))
sketch3.addConstraint(Sketcher.Constraint("Angle", 1, Q("53.9998 deg")))
sketch3.addConstraint(Sketcher.Constraint("Angle", 2, Q("114.0003 deg")))
sketch3.addConstraint(Sketcher.Constraint("Angle", 3, Q("174.0006 deg")))
sketch3.addConstraint(Sketcher.Constraint("Angle", 7, Q("18 deg")))
sketch3.addConstraint(Sketcher.Constraint("Angle", 8, Q("78.0003 deg")))
sketch3.addConstraint(Sketcher.Constraint("Angle", 9, Q("138 deg")))
sketch3.addConstraint(Sketcher.Constraint("Angle", 26, Q("-30 deg")))
sketch3.addConstraint(Sketcher.Constraint("DistanceY", 2, 2, -1, 1, Q("97.04 mm")))
sketch3.addConstraint(Sketcher.Constraint("DistanceY", 25, 2, 25, 1, Q("5.0518 mm")))
sketch3.addConstraint(Sketcher.Constraint("DistanceX", 1, 2, -1, 1, Q("68.449 mm")))
sketch3.addConstraint(Sketcher.Constraint("DistanceX", 3, 2, -1, 1, Q("75.528 mm")))
sketch3.addConstraint(Sketcher.Constraint("DistanceY", 8, 2, -1, 1, Q("37.066 mm")))
sketch3.addConstraint(Sketcher.Constraint("DistanceY", -1, 1, 25, 2, Q("122.474 mm")))
sketch3.addConstraint(Sketcher.Constraint("DistanceX", 7, 2, -1, 1, Q("115.1278 mm")))
pad3 = body.newObject("PartDesign::Pad", "Pad002")
pad3.Profile = sketch3
pad3.Length = 3.35
pad3.Reversed = True

# Sketch on XZ plane
sketch4 = body.newObject("Sketcher::SketchObject", "Sketch003")
sketch4.AttachmentSupport = (doc.getObject("XZ_Plane"), [""])
sketch4.MapMode = "FlatFace"
sketch4.AttachmentOffset = App.Placement(Vector(0, 0, -11), App.Rotation())
sketch4.addGeometry(Part.Circle(Vector(0, 0, 0), Vector(0, 0, 1), 150), False)  # 0
add_polygon(sketch4, [(-71.4184, -105.7422), (-68.449, -101.6552), (-70.5038, -97.0401), (-75.5279, -96.5121), (-78.4973, -100.5991), (-76.4425, -105.2141)])  # lines 1-6
add_polygon(sketch4, [(-119.9324, -43.5685), (-115.1278, -42.0074), (-114.0775, -37.066), (-117.8317, -33.6857), (-122.6363, -35.2468), (-123.6866, -40.1882)])  # lines 7-12
add_polygon(sketch4, [(-122.6363, 35.2468), (-117.8317, 33.6857), (-114.0775, 37.066), (-115.1278, 42.0074), (-119.9324, 43.5685), (-123.6866, 40.1882)])  # lines 13-18
add_polygon(sketch4, [(-78.4973, 100.5991), (-75.5279, 96.5121), (-70.5038, 97.0401), (-68.449, 101.6552), (-71.4184, 105.7422), (-76.4425, 105.2141)])  # lines 19-24
add_polygon(sketch4, [(-4.375, 127.5259), (-4.375, 122.4741), (0, 119.9482), (4.375, 122.4741), (4.375, 127.5259), (0, 130.0518)])  # lines 25-30
add_polygon(sketch4, [(71.4184, 105.7422), (68.449, 101.6552), (70.5038, 97.0401), (75.5279, 96.5121), (78.4973, 100.5991), (76.4425, 105.2141)])  # lines 31-36
add_polygon(sketch4, [(119.9324, 43.5685), (115.1278, 42.0074), (114.0775, 37.066), (117.8317, 33.6857), (122.6363, 35.2468), (123.6866, 40.1882)])  # lines 37-42
add_polygon(sketch4, [(122.6363, -35.2468), (117.8317, -33.6857), (114.0775, -37.066), (115.1278, -42.0074), (119.9324, -43.5685), (123.6866, -40.1882)])  # lines 43-48
add_polygon(sketch4, [(78.4973, -100.5991), (75.5279, -96.5121), (70.5038, -97.0401), (68.449, -101.6552), (71.4184, -105.7422), (76.4425, -105.2141)])  # lines 49-54
add_polygon(sketch4, [(4.375, -127.5259), (4.375, -122.4741), (0, -119.9482), (-4.375, -122.4741), (-4.375, -127.5259), (0, -130.0518)])  # lines 55-60
sketch4.addGeometry(Part.Circle(Vector(0, 0, 0), Vector(0, 0, 1), 100), False)  # 61
sketch4.addConstraint(Sketcher.Constraint("Vertical", 25))
sketch4.addConstraint(Sketcher.Constraint("Vertical", 28))
sketch4.addConstraint(Sketcher.Constraint("Vertical", 55))
sketch4.addConstraint(Sketcher.Constraint("Vertical", 58))
sketch4.addConstraint(Sketcher.Constraint("Coincident", 0, 3, -1, 1))
sketch4.addConstraint(Sketcher.Constraint("Coincident", 61, 3, -1, 1))
sketch4.addConstraint(Sketcher.Constraint("Symmetric", 1, 2, 31, 2, -1, 1))
sketch4.addConstraint(Sketcher.Constraint("Symmetric", 2, 2, 32, 2, -1, 1))
sketch4.addConstraint(Sketcher.Constraint("Symmetric", 3, 2, 33, 2, -1, 1))
sketch4.addConstraint(Sketcher.Constraint("Symmetric", 4, 2, 34, 2, -1, 1))
sketch4.addConstraint(Sketcher.Constraint("Symmetric", 5, 2, 35, 2, -1, 1))
sketch4.addConstraint(Sketcher.Constraint("Symmetric", 6, 2, 36, 2, -1, 1))
sketch4.addConstraint(Sketcher.Constraint("Symmetric", 7, 2, 37, 2, -1, 1))
sketch4.addConstraint(Sketcher.Constraint("Symmetric", 8, 2, 38, 2, -1, 1))
sketch4.addConstraint(Sketcher.Constraint("Symmetric", 9, 2, 39, 2, -1, 1))
sketch4.addConstraint(Sketcher.Constraint("Symmetric", 10, 2, 40, 2, -1, 1))
sketch4.addConstraint(Sketcher.Constraint("Symmetric", 11, 2, 41, 2, -1, 1))
sketch4.addConstraint(Sketcher.Constraint("Symmetric", 12, 2, 42, 2, -1, 1))
sketch4.addConstraint(Sketcher.Constraint("Symmetric", 13, 2, 43, 2, -1, 1))
sketch4.addConstraint(Sketcher.Constraint("Symmetric", 14, 2, 44, 2, -1, 1))
sketch4.addConstraint(Sketcher.Constraint("Symmetric", 15, 2, 45, 2, -1, 1))
sketch4.addConstraint(Sketcher.Constraint("Symmetric", 16, 2, 46, 2, -1, 1))
sketch4.addConstraint(Sketcher.Constraint("Symmetric", 17, 2, 47, 2, -1, 1))
sketch4.addConstraint(Sketcher.Constraint("Symmetric", 18, 2, 48, 2, -1, 1))
sketch4.addConstraint(Sketcher.Constraint("Symmetric", 19, 2, 49, 2, -1, 1))
sketch4.addConstraint(Sketcher.Constraint("Symmetric", 20, 2, 50, 2, -1, 1))
sketch4.addConstraint(Sketcher.Constraint("Symmetric", 21, 2, 51, 2, -1, 1))
sketch4.addConstraint(Sketcher.Constraint("Symmetric", 22, 2, 52, 2, -1, 1))
sketch4.addConstraint(Sketcher.Constraint("Symmetric", 23, 2, 53, 2, -1, 1))
sketch4.addConstraint(Sketcher.Constraint("Symmetric", 24, 2, 54, 2, -1, 1))
sketch4.addConstraint(Sketcher.Constraint("Symmetric", 25, 2, 55, 2, -1, 1))
sketch4.addConstraint(Sketcher.Constraint("Symmetric", 26, 2, 56, 2, -1, 1))
sketch4.addConstraint(Sketcher.Constraint("Symmetric", 27, 2, 57, 2, -1, 1))
sketch4.addConstraint(Sketcher.Constraint("Symmetric", 29, 2, 59, 2, -1, 1))
sketch4.addConstraint(Sketcher.Constraint("Symmetric", 25, 2, 27, 2, -2))
sketch4.addConstraint(Sketcher.Constraint("Symmetric", 21, 2, 31, 2, -2))
sketch4.addConstraint(Sketcher.Constraint("Symmetric", 20, 2, 32, 2, -2))
sketch4.addConstraint(Sketcher.Constraint("Symmetric", 19, 2, 33, 2, -2))
sketch4.addConstraint(Sketcher.Constraint("Symmetric", 24, 2, 34, 2, -2))
sketch4.addConstraint(Sketcher.Constraint("Symmetric", 23, 2, 35, 2, -2))
sketch4.addConstraint(Sketcher.Constraint("Symmetric", 22, 2, 36, 2, -2))
sketch4.addConstraint(Sketcher.Constraint("Symmetric", 15, 2, 37, 2, -2))
sketch4.addConstraint(Sketcher.Constraint("Symmetric", 14, 2, 38, 2, -2))
sketch4.addConstraint(Sketcher.Constraint("Symmetric", 13, 2, 39, 2, -2))
sketch4.addConstraint(Sketcher.Constraint("Symmetric", 18, 2, 40, 2, -2))
sketch4.addConstraint(Sketcher.Constraint("Symmetric", 17, 2, 41, 2, -2))
sketch4.addConstraint(Sketcher.Constraint("Symmetric", 16, 2, 42, 2, -2))
sketch4.addConstraint(Sketcher.Constraint("PointOnObject", 26, 2, -2))
sketch4.addConstraint(Sketcher.Constraint("PointOnObject", 29, 2, -2))
sketch4.addConstraint(Sketcher.Constraint("Parallel", 1, 4))
sketch4.addConstraint(Sketcher.Constraint("Parallel", 2, 5))
sketch4.addConstraint(Sketcher.Constraint("Parallel", 3, 6))
sketch4.addConstraint(Sketcher.Constraint("Parallel", 7, 10))
sketch4.addConstraint(Sketcher.Constraint("Parallel", 8, 11))
sketch4.addConstraint(Sketcher.Constraint("Parallel", 9, 12))
sketch4.addConstraint(Sketcher.Constraint("Parallel", 26, 29))
sketch4.addConstraint(Sketcher.Constraint("Parallel", 27, 30))
sketch4.addConstraint(Sketcher.Constraint("Parallel", 56, 59))
sketch4.addConstraint(Sketcher.Constraint("Parallel", 57, 60))
sketch4.addConstraint(Sketcher.Constraint("Equal", 1, 2))
sketch4.addConstraint(Sketcher.Constraint("Equal", 2, 3))
sketch4.addConstraint(Sketcher.Constraint("Equal", 3, 4))
sketch4.addConstraint(Sketcher.Constraint("Equal", 6, 7))
sketch4.addConstraint(Sketcher.Constraint("Equal", 7, 8))
sketch4.addConstraint(Sketcher.Constraint("Equal", 8, 9))
sketch4.addConstraint(Sketcher.Constraint("Equal", 9, 10))
sketch4.addConstraint(Sketcher.Constraint("Equal", 24, 26))
sketch4.addConstraint(Sketcher.Constraint("Diameter", 61, Q("200 mm")))
sketch4.addConstraint(Sketcher.Constraint("Diameter", 0, Q("300 mm")))
sketch4.addConstraint(Sketcher.Constraint("Angle", 1, Q("53.9998 deg")))
sketch4.addConstraint(Sketcher.Constraint("Angle", 2, Q("114.0003 deg")))
sketch4.addConstraint(Sketcher.Constraint("Angle", 3, Q("174.0006 deg")))
sketch4.addConstraint(Sketcher.Constraint("Angle", 7, Q("18 deg")))
sketch4.addConstraint(Sketcher.Constraint("Angle", 8, Q("78.0003 deg")))
sketch4.addConstraint(Sketcher.Constraint("Angle", 9, Q("138 deg")))
sketch4.addConstraint(Sketcher.Constraint("Angle", 26, Q("-30 deg")))
sketch4.addConstraint(Sketcher.Constraint("DistanceY", 2, 2, -1, 1, Q("97.04 mm")))
sketch4.addConstraint(Sketcher.Constraint("DistanceY", 25, 2, 25, 1, Q("5.0518 mm")))
sketch4.addConstraint(Sketcher.Constraint("DistanceX", 1, 2, -1, 1, Q("68.449 mm")))
sketch4.addConstraint(Sketcher.Constraint("DistanceX", 3, 2, -1, 1, Q("75.528 mm")))
sketch4.addConstraint(Sketcher.Constraint("DistanceY", 8, 2, -1, 1, Q("37.066 mm")))
sketch4.addConstraint(Sketcher.Constraint("DistanceY", -1, 1, 25, 2, Q("122.474 mm")))
sketch4.addConstraint(Sketcher.Constraint("DistanceX", 7, 2, -1, 1, Q("115.1278 mm")))
pad4 = body.newObject("PartDesign::Pad", "Pad003")
pad4.Profile = sketch4
pad4.Length = 4
pad4.Reversed = True

# Sketch on XZ plane
sketch5 = body.newObject("Sketcher::SketchObject", "Sketch004")
sketch5.AttachmentSupport = (doc.getObject("XZ_Plane"), [""])
sketch5.MapMode = "FlatFace"
sketch5.AttachmentOffset = App.Placement(Vector(0, 0, -15), App.Rotation())
sketch5.addGeometry(Part.Circle(Vector(0, 0, 0), Vector(0, 0, 1), 120.75), False)
sketch5.addConstraint(Sketcher.Constraint("Coincident", 0, 3, -1, 1))
sketch5.addConstraint(Sketcher.Constraint("Diameter", 0, Q("241.5 mm")))
pocket1 = body.newObject("PartDesign::Pocket", "Pocket")
pocket1.Profile = sketch5
pocket1.Length = 2.125
pocket1.Reversed = True

# Sketch on XZ plane
sketch6 = body.newObject("Sketcher::SketchObject", "Sketch005")
sketch6.AttachmentSupport = (doc.getObject("XZ_Plane"), [""])
sketch6.MapMode = "FlatFace"
sketch6.addGeometry(Part.Circle(Vector(-43.2624, -133.1479, 0), Vector(0, 0, 1), 2.75), False)
sketch6.addGeometry(Part.Circle(Vector(-113.2624, -82.2899, 0), Vector(0, 0, 1), 2.75), False)
sketch6.addGeometry(Part.Circle(Vector(-140, 0, 0), Vector(0, 0, 1), 2.75), False)
sketch6.addGeometry(Part.Circle(Vector(-113.2624, 82.2899, 0), Vector(0, 0, 1), 2.75), False)
sketch6.addGeometry(Part.Circle(Vector(-43.2624, 133.1479, 0), Vector(0, 0, 1), 2.75), False)
sketch6.addGeometry(Part.Circle(Vector(43.2624, 133.1479, 0), Vector(0, 0, 1), 2.75), False)
sketch6.addGeometry(Part.Circle(Vector(113.2624, 82.2899, 0), Vector(0, 0, 1), 2.75), False)
sketch6.addGeometry(Part.Circle(Vector(140, 0, 0), Vector(0, 0, 1), 2.75), False)
sketch6.addGeometry(Part.Circle(Vector(113.2624, -82.2899, 0), Vector(0, 0, 1), 2.75), False)
sketch6.addGeometry(Part.Circle(Vector(43.2624, -133.1479, 0), Vector(0, 0, 1), 2.75), False)
sketch6.addConstraint(Sketcher.Constraint("Equal", 0, 1))
sketch6.addConstraint(Sketcher.Constraint("Equal", 1, 2))
sketch6.addConstraint(Sketcher.Constraint("Equal", 2, 3))
sketch6.addConstraint(Sketcher.Constraint("Equal", 3, 4))
sketch6.addConstraint(Sketcher.Constraint("Equal", 4, 5))
sketch6.addConstraint(Sketcher.Constraint("Equal", 5, 6))
sketch6.addConstraint(Sketcher.Constraint("Equal", 6, 7))
sketch6.addConstraint(Sketcher.Constraint("Equal", 7, 8))
sketch6.addConstraint(Sketcher.Constraint("Equal", 8, 9))
sketch6.addConstraint(Sketcher.Constraint("Symmetric", 0, 3, 5, 3, -1, 1))
sketch6.addConstraint(Sketcher.Constraint("Symmetric", 1, 3, 6, 3, -1, 1))
sketch6.addConstraint(Sketcher.Constraint("Symmetric", 2, 3, 7, 3, -1, 1))
sketch6.addConstraint(Sketcher.Constraint("Symmetric", 3, 3, 8, 3, -1, 1))
sketch6.addConstraint(Sketcher.Constraint("Symmetric", 4, 3, 9, 3, -1, 1))
sketch6.addConstraint(Sketcher.Constraint("Symmetric", 4, 3, 5, 3, -2))
sketch6.addConstraint(Sketcher.Constraint("Symmetric", 3, 3, 6, 3, -2))
sketch6.addConstraint(Sketcher.Constraint("PointOnObject", 2, 3, -1))
sketch6.addConstraint(Sketcher.Constraint("Diameter", 0, Q("5.5 mm")))
sketch6.addConstraint(Sketcher.Constraint("DistanceX", 2, 3, -1, 1, Q("140 mm")))
sketch6.addConstraint(Sketcher.Constraint("DistanceX", 1, 3, 0, 3, Q("70 mm")))
sketch6.addConstraint(Sketcher.Constraint("DistanceY", 1, 3, -1, 1, Q("82.29 mm")))
sketch6.addConstraint(Sketcher.Constraint("DistanceY", 0, 3, -1, 1, Q("133.148 mm")))
sketch6.addConstraint(Sketcher.Constraint("DistanceX", 0, 3, -1, 1, Q("43.2624 mm")))
doc.recompute()
hole = body.newObject("PartDesign::Hole", "Hole")
hole.Profile = sketch6
hole.ThreadType = "None"
hole.Diameter = 5.5
hole.DepthType = "ThroughAll"
hole.HoleCutType = "Counterbore"
hole.HoleCutDiameter = 10.475
hole.HoleCutDepth = 7.375

# Sketch on YZ plane
sketch7 = body.newObject("Sketcher::SketchObject", "Sketch006")
sketch7.AttachmentSupport = (doc.getObject("YZ_Plane"), [""])
sketch7.MapMode = "FlatFace"
add_polygon(sketch7, [(2, -112.5), (-2, -112.5), (-2, -116.5), (2, -116.5)])  # lines 0-3
add_polygon(sketch7, [(10.875, -116.5), (14.875, -116.5), (14.875, -112.5), (10.875, -112.5)])  # lines 4-7
sketch7.addConstraint(Sketcher.Constraint("Horizontal", 0))
sketch7.addConstraint(Sketcher.Constraint("Vertical", 1))
sketch7.addConstraint(Sketcher.Constraint("Horizontal", 2))
sketch7.addConstraint(Sketcher.Constraint("Vertical", 3))
sketch7.addConstraint(Sketcher.Constraint("Horizontal", 4))
sketch7.addConstraint(Sketcher.Constraint("Vertical", 5))
sketch7.addConstraint(Sketcher.Constraint("Horizontal", 6))
sketch7.addConstraint(Sketcher.Constraint("Vertical", 7))
sketch7.addConstraint(Sketcher.Constraint("Horizontal", 2, 2, 4, 2))
sketch7.addConstraint(Sketcher.Constraint("Horizontal", 3, 2, 5, 2))
sketch7.addConstraint(Sketcher.Constraint("Equal", 2, 4))
sketch7.addConstraint(Sketcher.Constraint("Equal", 6, 1))
sketch7.addConstraint(Sketcher.Constraint("DistanceX", 0, 2, 0, 1, Q("4 mm")))
sketch7.addConstraint(Sketcher.Constraint("DistanceX", 0, 2, -1, 1, Q("2 mm")))
sketch7.addConstraint(Sketcher.Constraint("DistanceY", 0, 2, -1, 1, Q("112.5 mm")))
sketch7.addConstraint(Sketcher.Constraint("DistanceX", -1, 1, 4, 2, Q("14.875 mm")))
groove = body.newObject("PartDesign::Groove", "Groove")
groove.Profile = sketch7
groove.ReferenceAxis = (sketch7, ["H_Axis"])
groove.Angle = 360

# Sketch on an angled plane
sketch8 = body.newObject("Sketcher::SketchObject", "Sketch007")
sketch8.Placement = App.Placement(Vector(7.9375, 48.3432, 125.7463), App.Rotation(Vector(-1, 0, 0), Vector(0, 0.394703645, 0.918808485), Vector(0, 0.918808485, -0.394703645), "ZXY"))
sketch8.addGeometry(Part.Circle(Vector(7.9375, -52.7148, 0), Vector(0, 0, 1), 20), False)
sketch8.addConstraint(Sketcher.Constraint("Diameter", 0, Q("40 mm")))
sketch8.addConstraint(Sketcher.Constraint("DistanceX", -1, 1, 0, 3, Q("7.9375 mm")))
sketch8.addConstraint(Sketcher.Constraint("DistanceY", 0, 3, -1, 1, Q("52.7148 mm")))
pocket2 = body.newObject("PartDesign::Pocket", "Pocket001")
pocket2.Profile = sketch8
pocket2.Length = 256.0625

doc.recompute()
